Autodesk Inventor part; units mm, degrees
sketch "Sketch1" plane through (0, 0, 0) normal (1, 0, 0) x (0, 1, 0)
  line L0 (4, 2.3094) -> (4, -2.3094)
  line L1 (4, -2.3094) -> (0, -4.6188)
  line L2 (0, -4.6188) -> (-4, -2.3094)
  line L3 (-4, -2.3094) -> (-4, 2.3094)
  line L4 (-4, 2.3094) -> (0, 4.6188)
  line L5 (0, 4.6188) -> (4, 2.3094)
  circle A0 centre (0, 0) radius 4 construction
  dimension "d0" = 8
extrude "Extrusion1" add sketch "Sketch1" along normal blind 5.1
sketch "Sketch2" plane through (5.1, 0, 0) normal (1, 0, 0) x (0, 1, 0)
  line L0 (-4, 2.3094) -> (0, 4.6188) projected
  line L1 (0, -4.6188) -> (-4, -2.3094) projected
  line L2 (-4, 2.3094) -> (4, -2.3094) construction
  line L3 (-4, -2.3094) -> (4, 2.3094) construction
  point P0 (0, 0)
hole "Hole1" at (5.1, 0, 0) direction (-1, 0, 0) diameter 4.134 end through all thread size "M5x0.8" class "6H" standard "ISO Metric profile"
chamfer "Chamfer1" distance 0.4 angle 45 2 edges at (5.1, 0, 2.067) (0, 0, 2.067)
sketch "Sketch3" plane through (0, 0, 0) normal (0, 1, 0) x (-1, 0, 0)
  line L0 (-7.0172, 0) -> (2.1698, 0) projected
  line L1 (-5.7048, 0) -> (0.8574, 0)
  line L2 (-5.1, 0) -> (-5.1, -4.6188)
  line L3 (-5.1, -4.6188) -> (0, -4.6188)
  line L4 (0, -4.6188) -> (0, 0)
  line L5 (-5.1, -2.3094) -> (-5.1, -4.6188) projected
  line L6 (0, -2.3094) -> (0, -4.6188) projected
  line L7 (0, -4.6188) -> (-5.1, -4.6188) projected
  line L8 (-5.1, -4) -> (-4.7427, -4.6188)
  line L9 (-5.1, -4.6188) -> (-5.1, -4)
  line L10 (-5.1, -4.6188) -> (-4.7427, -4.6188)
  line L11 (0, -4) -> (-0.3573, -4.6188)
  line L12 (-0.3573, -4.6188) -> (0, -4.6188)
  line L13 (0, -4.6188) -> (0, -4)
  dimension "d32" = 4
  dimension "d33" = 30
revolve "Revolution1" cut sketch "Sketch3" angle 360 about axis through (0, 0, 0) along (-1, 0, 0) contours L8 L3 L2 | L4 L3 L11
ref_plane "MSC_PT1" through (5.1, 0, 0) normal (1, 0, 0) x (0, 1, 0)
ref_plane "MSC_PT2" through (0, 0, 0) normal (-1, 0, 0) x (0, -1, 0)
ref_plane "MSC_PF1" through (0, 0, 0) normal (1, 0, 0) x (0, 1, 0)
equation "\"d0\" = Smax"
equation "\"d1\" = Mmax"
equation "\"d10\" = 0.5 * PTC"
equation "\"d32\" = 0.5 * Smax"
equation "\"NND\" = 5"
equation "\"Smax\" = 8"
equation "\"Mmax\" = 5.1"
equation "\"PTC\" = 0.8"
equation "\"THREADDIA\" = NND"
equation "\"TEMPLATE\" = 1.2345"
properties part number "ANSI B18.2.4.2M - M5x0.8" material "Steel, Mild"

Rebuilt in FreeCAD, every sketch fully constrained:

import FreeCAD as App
import Part
import Sketcher
Q = App.Units.Quantity


def edges_at(feature, points):
    """Names of the edges that pass closest to the given points."""
    edges = feature.Shape.Edges
    near = lambda p: min(range(len(edges)), key=lambda i: edges[i].distToShape(Part.Vertex(*p))[0])
    return sorted({f"Edge{near(p) + 1}" for p in points})

doc = App.newDocument("Part")
body = doc.addObject("PartDesign::Body", "Body")

sketch1 = body.newObject("Sketcher::SketchObject", "Sketch")
sketch1.AttachmentSupport = (doc.getObject("YZ_Plane"), [""])
sketch1.MapMode = "FlatFace"
sketch1.addGeometry(Part.LineSegment(App.Vector(4, -2.3, 0), App.Vector(4, 2.3, 0)), False)
sketch1.addGeometry(Part.LineSegment(App.Vector(4, 2.3, 0), App.Vector(0, 4.6, 0)), False)
sketch1.addGeometry(Part.LineSegment(App.Vector(0, 4.6, 0), App.Vector(-4, 2.3, 0)), False)
sketch1.addGeometry(Part.LineSegment(App.Vector(-4, 2.3, 0), App.Vector(-4, -2.3, 0)), False)
sketch1.addGeometry(Part.LineSegment(App.Vector(-4, -2.3, 0), App.Vector(0, -4.6, 0)), False)
sketch1.addGeometry(Part.LineSegment(App.Vector(0, -4.6, 0), App.Vector(4, -2.3, 0)), False)
sketch1.addConstraint(Sketcher.Constraint("Coincident", 0, 2, 1, 1))
sketch1.addConstraint(Sketcher.Constraint("Coincident", 1, 2, 2, 1))
sketch1.addConstraint(Sketcher.Constraint("Coincident", 2, 2, 3, 1))
sketch1.addConstraint(Sketcher.Constraint("Coincident", 3, 2, 4, 1))
sketch1.addConstraint(Sketcher.Constraint("Coincident", 4, 2, 5, 1))
sketch1.addConstraint(Sketcher.Constraint("Coincident", 5, 2, 0, 1))
sketch1.addConstraint(Sketcher.Constraint("Vertical", 0))
sketch1.addConstraint(Sketcher.Constraint("Vertical", 3))
sketch1.addConstraint(Sketcher.Constraint("Symmetric", 0, 2, 3, 2, -1, 1))
sketch1.addConstraint(Sketcher.Constraint("Symmetric", 1, 2, 4, 2, -1, 1))
sketch1.addConstraint(Sketcher.Constraint("PointOnObject", 1, 2, -2))
sketch1.addConstraint(Sketcher.Constraint("Parallel", 2, 5))
sketch1.addConstraint(Sketcher.Constraint("Horizontal", 0, 2, 2, 2))
sketch1.addConstraint(Sketcher.Constraint("DistanceX", 2, 2, 0, 2, Q("8 mm")))
sketch1.addConstraint(Sketcher.Constraint("Angle", 1, Q("150 deg")))
sketch1.addConstraint(Sketcher.Constraint("DistanceY", 0, 1, 0, 2, Q("4.6188 mm")))
pad1 = body.newObject("PartDesign::Pad", "Pad")
pad1.Profile = sketch1
pad1.Length = 5.1

sketch2 = body.newObject("Sketcher::SketchObject", "Sketch001")
sketch2.AttachmentSupport = (doc.getObject("YZ_Plane"), [""])
sketch2.MapMode = "FlatFace"
sketch2.AttachmentOffset = App.Placement(App.Vector(0, 0, 5.1), App.Rotation())
sketch2.addGeometry(Part.Circle(App.Vector(0, 0, 0), App.Vector(0, 0, 1), 2.1), False)
sketch2.addConstraint(Sketcher.Constraint("Coincident", 0, 3, -1, 1))
sketch2.addConstraint(Sketcher.Constraint("Diameter", 0, Q("4.134 mm")))
doc.recompute()
hole = body.newObject("PartDesign::Hole", "Hole")
hole.Profile = sketch2
hole.ThreadType = "None"
hole.Diameter = 4.134
hole.DepthType = "ThroughAll"
doc.recompute()

chamfer = body.newObject("PartDesign::Chamfer", "Chamfer")
chamfer.Base = (hole, edges_at(hole, [(5.1, 0, 2.067), (0, 0, 2.067)]))
chamfer.Size = 0.4

sketch3 = body.newObject("Sketcher::SketchObject", "Sketch002")
sketch3.AttachmentSupport = (doc.getObject("XZ_Plane"), [""])
sketch3.MapMode = "FlatFace"
sketch3.addGeometry(Part.LineSegment(App.Vector(4.74, -4.62, 0), App.Vector(5.1, -4, 0)), False)
sketch3.addGeometry(Part.LineSegment(App.Vector(5.1, -4, 0), App.Vector(5.1, -4.62, 0)), False)
sketch3.addGeometry(Part.LineSegment(App.Vector(5.1, -4.62, 0), App.Vector(4.74, -4.62, 0)), False)
sketch3.addGeometry(Part.LineSegment(App.Vector(0, -4.62, 0), App.Vector(0, -4, 0)), False)
sketch3.addGeometry(Part.LineSegment(App.Vector(0, -4, 0), App.Vector(0.36, -4.62, 0)), False)
sketch3.addGeometry(Part.LineSegment(App.Vector(0.36, -4.62, 0), App.Vector(0, -4.62, 0)), False)
sketch3.addConstraint(Sketcher.Constraint("Coincident", 0, 2, 1, 1))
sketch3.addConstraint(Sketcher.Constraint("Coincident", 1, 2, 2, 1))
sketch3.addConstraint(Sketcher.Constraint("Coincident", 2, 2, 0, 1))
sketch3.addConstraint(Sketcher.Constraint("Coincident", 3, 2, 4, 1))
sketch3.addConstraint(Sketcher.Constraint("Coincident", 4, 2, 5, 1))
sketch3.addConstraint(Sketcher.Constraint("Coincident", 5, 2, 3, 1))
sketch3.addConstraint(Sketcher.Constraint("Vertical", 1))
sketch3.addConstraint(Sketcher.Constraint("Horizontal", 2))
sketch3.addConstraint(Sketcher.Constraint("Vertical", 3))
sketch3.addConstraint(Sketcher.Constraint("Horizontal", 5))
sketch3.addConstraint(Sketcher.Constraint("PointOnObject", 3, 2, -2))
sketch3.addConstraint(Sketcher.Constraint("Horizontal", 0, 2, 3, 2))
sketch3.addConstraint(Sketcher.Constraint("Horizontal", 2, 2, 4, 2))
sketch3.addConstraint(Sketcher.Constraint("Equal", 2, 5))
sketch3.addConstraint(Sketcher.Constraint("DistanceY", 0, 2, -1, 1, Q("4 mm")))
sketch3.addConstraint(Sketcher.Constraint("DistanceX", -1, 1, 0, 2, Q("5.1 mm")))
sketch3.addConstraint(Sketcher.Constraint("DistanceX", 2, 2, 2, 1, Q("0.3573 mm")))
sketch3.addConstraint(Sketcher.Constraint("DistanceY", 1, 2, 1, 1, Q("0.6188 mm")))
groove = body.newObject("PartDesign::Groove", "Groove")
groove.Profile = sketch3
groove.ReferenceAxis = (sketch3, ["H_Axis"])
groove.Angle = 360

doc.recompute()
